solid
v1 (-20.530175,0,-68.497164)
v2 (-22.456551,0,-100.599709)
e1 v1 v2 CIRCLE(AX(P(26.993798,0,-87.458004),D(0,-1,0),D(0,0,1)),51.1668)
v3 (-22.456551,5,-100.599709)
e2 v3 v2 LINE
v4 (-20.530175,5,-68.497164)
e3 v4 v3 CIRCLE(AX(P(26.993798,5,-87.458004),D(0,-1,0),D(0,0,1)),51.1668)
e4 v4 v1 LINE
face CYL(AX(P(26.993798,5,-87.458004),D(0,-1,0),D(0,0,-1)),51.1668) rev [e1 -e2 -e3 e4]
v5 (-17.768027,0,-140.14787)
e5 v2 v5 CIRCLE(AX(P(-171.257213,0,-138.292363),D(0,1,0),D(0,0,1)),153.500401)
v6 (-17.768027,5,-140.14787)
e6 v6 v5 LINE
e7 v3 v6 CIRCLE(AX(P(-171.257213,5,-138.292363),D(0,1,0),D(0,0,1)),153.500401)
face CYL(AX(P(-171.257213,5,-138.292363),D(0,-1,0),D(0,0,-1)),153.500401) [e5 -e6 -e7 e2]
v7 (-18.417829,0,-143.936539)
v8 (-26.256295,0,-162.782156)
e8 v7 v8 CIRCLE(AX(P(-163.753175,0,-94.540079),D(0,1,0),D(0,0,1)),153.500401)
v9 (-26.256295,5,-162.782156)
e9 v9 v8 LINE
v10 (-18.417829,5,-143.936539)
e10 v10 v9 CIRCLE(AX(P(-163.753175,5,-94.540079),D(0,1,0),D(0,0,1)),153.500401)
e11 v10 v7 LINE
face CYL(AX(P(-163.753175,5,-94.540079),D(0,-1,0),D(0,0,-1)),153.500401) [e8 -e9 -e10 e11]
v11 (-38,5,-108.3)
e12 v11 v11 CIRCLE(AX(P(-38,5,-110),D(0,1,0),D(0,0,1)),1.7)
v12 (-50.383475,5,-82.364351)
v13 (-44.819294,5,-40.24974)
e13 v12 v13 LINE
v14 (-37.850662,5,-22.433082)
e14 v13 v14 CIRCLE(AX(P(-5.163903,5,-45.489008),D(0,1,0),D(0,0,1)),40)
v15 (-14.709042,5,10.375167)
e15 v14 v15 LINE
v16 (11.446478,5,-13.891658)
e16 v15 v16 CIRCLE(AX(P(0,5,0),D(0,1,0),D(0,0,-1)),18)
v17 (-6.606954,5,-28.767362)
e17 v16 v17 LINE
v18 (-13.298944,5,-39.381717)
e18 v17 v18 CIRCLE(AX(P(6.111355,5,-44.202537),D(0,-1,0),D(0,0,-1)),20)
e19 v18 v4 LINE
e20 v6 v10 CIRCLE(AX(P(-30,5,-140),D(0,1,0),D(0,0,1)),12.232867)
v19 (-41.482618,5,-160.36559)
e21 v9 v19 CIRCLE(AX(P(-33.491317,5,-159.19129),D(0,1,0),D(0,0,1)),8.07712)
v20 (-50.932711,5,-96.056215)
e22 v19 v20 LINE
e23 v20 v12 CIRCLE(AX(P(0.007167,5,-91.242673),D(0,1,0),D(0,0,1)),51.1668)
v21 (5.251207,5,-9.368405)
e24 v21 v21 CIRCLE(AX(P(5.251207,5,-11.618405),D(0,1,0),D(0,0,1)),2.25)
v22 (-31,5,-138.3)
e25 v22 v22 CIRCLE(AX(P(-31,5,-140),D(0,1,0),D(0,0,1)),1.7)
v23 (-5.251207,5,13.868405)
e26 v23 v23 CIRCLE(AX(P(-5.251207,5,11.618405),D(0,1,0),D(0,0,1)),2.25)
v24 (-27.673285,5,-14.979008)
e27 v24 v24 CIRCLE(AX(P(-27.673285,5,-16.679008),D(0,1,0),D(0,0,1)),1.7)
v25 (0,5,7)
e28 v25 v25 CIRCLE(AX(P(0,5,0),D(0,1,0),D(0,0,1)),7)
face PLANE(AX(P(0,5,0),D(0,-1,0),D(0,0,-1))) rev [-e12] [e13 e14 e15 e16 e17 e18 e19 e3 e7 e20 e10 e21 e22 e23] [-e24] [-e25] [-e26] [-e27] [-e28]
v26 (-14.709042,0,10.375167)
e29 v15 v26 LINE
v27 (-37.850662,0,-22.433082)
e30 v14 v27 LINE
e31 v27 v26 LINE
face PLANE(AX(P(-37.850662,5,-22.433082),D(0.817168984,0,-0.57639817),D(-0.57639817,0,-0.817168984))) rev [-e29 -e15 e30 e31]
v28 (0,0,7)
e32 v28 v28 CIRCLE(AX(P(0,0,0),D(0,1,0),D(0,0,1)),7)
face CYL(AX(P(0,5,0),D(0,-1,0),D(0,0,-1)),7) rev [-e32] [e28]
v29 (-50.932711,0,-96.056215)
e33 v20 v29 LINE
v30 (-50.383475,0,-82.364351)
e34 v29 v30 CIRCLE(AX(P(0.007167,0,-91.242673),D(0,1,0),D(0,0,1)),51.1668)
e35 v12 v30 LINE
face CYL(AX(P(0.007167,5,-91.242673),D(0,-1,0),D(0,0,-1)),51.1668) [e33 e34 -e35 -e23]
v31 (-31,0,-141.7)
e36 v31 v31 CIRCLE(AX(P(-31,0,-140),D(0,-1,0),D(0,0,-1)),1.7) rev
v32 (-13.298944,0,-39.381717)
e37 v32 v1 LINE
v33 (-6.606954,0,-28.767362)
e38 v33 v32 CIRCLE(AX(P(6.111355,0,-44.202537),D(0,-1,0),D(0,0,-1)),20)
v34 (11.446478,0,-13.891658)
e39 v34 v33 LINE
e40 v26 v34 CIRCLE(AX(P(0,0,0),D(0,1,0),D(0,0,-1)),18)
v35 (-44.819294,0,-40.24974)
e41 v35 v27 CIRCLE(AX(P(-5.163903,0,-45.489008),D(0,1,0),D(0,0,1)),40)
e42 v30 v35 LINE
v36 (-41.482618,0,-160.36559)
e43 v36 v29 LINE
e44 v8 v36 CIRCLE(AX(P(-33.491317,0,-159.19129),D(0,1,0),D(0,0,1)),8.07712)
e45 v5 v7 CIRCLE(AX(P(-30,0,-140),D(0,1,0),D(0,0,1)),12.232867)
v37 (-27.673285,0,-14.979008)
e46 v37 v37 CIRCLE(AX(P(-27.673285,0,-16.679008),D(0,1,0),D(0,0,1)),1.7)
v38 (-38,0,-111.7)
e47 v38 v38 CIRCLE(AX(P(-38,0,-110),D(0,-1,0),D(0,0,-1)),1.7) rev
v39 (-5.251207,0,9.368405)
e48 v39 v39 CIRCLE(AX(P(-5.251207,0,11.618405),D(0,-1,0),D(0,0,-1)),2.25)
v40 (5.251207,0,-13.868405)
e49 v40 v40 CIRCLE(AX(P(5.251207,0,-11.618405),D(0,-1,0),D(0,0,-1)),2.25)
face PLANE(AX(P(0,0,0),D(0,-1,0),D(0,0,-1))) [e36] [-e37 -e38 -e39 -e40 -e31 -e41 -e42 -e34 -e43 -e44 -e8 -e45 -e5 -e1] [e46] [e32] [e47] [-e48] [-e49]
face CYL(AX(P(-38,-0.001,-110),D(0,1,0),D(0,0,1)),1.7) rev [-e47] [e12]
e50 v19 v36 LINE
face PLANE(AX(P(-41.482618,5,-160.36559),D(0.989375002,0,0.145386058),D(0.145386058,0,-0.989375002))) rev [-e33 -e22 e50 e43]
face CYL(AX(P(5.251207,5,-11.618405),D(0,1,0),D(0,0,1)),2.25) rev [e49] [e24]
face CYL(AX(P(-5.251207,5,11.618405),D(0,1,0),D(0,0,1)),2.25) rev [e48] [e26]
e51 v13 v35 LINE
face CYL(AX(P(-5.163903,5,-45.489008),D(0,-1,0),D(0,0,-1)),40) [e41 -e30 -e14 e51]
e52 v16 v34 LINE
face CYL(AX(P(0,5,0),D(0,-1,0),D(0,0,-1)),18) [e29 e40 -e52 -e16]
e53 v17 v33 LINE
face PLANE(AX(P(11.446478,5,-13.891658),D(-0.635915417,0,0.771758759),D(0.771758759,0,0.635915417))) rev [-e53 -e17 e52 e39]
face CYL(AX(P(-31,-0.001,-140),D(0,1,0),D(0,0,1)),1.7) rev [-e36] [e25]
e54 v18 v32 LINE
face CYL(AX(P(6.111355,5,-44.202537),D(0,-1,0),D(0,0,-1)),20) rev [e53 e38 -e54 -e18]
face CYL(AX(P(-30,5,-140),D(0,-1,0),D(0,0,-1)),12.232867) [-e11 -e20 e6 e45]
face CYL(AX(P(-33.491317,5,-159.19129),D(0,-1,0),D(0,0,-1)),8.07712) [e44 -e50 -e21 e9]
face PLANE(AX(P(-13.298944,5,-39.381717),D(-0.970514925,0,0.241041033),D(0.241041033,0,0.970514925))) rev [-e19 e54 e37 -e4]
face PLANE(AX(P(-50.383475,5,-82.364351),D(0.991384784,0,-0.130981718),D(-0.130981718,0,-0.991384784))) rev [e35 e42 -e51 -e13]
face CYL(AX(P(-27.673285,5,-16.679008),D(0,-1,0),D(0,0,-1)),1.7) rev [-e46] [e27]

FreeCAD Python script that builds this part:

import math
import FreeCAD as App
import Part
import Sketcher
Q = App.Units.Quantity

doc = App.newDocument("Part")
body = doc.addObject("PartDesign::Body", "Body")

sketch1 = body.newObject("Sketcher::SketchObject", "Sketch")
sketch1.AttachmentSupport = (doc.getObject("XZ_Plane"), [""])
sketch1.MapMode = "FlatFace"
sketch1.addGeometry(Part.LineSegment(App.Vector(11.446478, -13.891658, 0), App.Vector(-6.606954, -28.767362, 0)), False)
sketch1.addGeometry(Part.ArcOfCircle(Part.Circle(App.Vector(6.111355, -44.202537, 0), App.Vector(0, 0, 1), 20), math.radians(129.487912), math.radians(166.052009)), False)
sketch1.addGeometry(Part.LineSegment(App.Vector(-13.298944, -39.381717, 0), App.Vector(-20.530175, -68.497164, 0)), False)
sketch1.addGeometry(Part.ArcOfCircle(Part.Circle(App.Vector(26.993798, -87.458004, 0), App.Vector(0, 0, 1), 51.1668), math.radians(158.249275), math.radians(194.882669)), False)
sketch1.addGeometry(Part.ArcOfCircle(Part.Circle(App.Vector(-171.257213, -138.292363, 0), App.Vector(0, 0, 1), 153.500401), math.radians(-0.692606), math.radians(14.214582)), False)
sketch1.addGeometry(Part.ArcOfCircle(Part.Circle(App.Vector(-30, -140, 0), App.Vector(0, 0, 1), 12.232867), math.radians(-18.771829), math.radians(-0.692606)), False)
sketch1.addGeometry(Part.ArcOfCircle(Part.Circle(App.Vector(-163.753175, -94.540079, 0), App.Vector(0, 0, 1), 153.500401), math.radians(-26.395999), math.radians(-18.771829)), False)
sketch1.addGeometry(Part.ArcOfCircle(Part.Circle(App.Vector(-33.491317, -159.19129, 0), App.Vector(0, 0, 1), 8.07712), math.radians(-171.640364), math.radians(-26.395999)), False)
sketch1.addGeometry(Part.LineSegment(App.Vector(-41.482618, -160.36559, 0), App.Vector(-50.932711, -96.056215, 0)), False)
sketch1.addGeometry(Part.ArcOfCircle(Part.Circle(App.Vector(0.007167, -91.242673, 0), App.Vector(0, 0, 1), 51.1668), math.radians(170.007618), math.radians(185.398111)), False)
sketch1.addGeometry(Part.LineSegment(App.Vector(-50.383475, -82.364351, 0), App.Vector(-44.819294, -40.24974, 0)), False)
sketch1.addGeometry(Part.ArcOfCircle(Part.Circle(App.Vector(-5.163903, -45.489008, 0), App.Vector(0, 0, 1), 40), math.radians(144.802394), math.radians(172.473674)), False)
sketch1.addGeometry(Part.LineSegment(App.Vector(-37.850662, -22.433082, 0), App.Vector(-14.709042, 10.375167, 0)), False)
sketch1.addGeometry(Part.ArcOfCircle(Part.Circle(App.Vector(0, 0, 0), App.Vector(0, 0, 1), 18), math.radians(-50.512088), math.radians(144.802394)), False)
sketch1.addGeometry(Part.Circle(App.Vector(0, 0, 0), App.Vector(0, 0, 1), 7), False)
sketch1.addGeometry(Part.Circle(App.Vector(-27.673285, -16.679008, 0), App.Vector(0, 0, 1), 1.7), False)
sketch1.addConstraint(Sketcher.Constraint("Coincident", 0, 2, 1, 1))
sketch1.addConstraint(Sketcher.Constraint("Coincident", 1, 2, 2, 1))
sketch1.addConstraint(Sketcher.Constraint("Coincident", 2, 2, 3, 1))
sketch1.addConstraint(Sketcher.Constraint("Coincident", 3, 2, 4, 2))
sketch1.addConstraint(Sketcher.Constraint("Coincident", 4, 1, 5, 2))
sketch1.addConstraint(Sketcher.Constraint("Coincident", 5, 1, 6, 2))
sketch1.addConstraint(Sketcher.Constraint("Coincident", 6, 1, 7, 2))
sketch1.addConstraint(Sketcher.Constraint("Coincident", 7, 1, 8, 1))
sketch1.addConstraint(Sketcher.Constraint("Coincident", 8, 2, 9, 2))
sketch1.addConstraint(Sketcher.Constraint("Coincident", 9, 1, 10, 1))
sketch1.addConstraint(Sketcher.Constraint("Coincident", 10, 2, 11, 2))
sketch1.addConstraint(Sketcher.Constraint("Coincident", 11, 1, 12, 1))
sketch1.addConstraint(Sketcher.Constraint("Coincident", 12, 2, 13, 2))
sketch1.addConstraint(Sketcher.Constraint("Coincident", 13, 1, 0, 1))
sketch1.addConstraint(Sketcher.Constraint("Coincident", 13, 3, -1, 1))
sketch1.addConstraint(Sketcher.Constraint("Coincident", 14, 3, -1, 1))
sketch1.addConstraint(Sketcher.Constraint("Diameter", 14, Q("14 mm")))
sketch1.addConstraint(Sketcher.Constraint("Radius", 1, Q("20 mm")))
sketch1.addConstraint(Sketcher.Constraint("Radius", 11, Q("40 mm")))
sketch1.addConstraint(Sketcher.Constraint("Radius", 13, Q("18 mm")))
sketch1.addConstraint(Sketcher.Constraint("Diameter", 15, Q("3.4 mm")))
sketch1.addConstraint(Sketcher.Constraint("Distance", 2, Q("30 mm")))
sketch1.addConstraint(Sketcher.Constraint("Distance", 8, Q("65 mm")))
sketch1.addConstraint(Sketcher.Constraint("DistanceX", 5, 3, -1, 1, Q("30 mm")))
sketch1.addConstraint(Sketcher.Constraint("DistanceY", 5, 3, -1, 1, Q("140 mm")))
sketch1.addConstraint(Sketcher.Constraint("Radius", 3, Q("51.1668 mm")))
sketch1.addConstraint(Sketcher.Constraint("Radius", 4, Q("153.500401 mm")))
sketch1.addConstraint(Sketcher.Constraint("Radius", 6, Q("153.500401 mm")))
sketch1.addConstraint(Sketcher.Constraint("Radius", 9, Q("51.1668 mm")))
sketch1.addConstraint(Sketcher.Constraint("Radius", 7, Q("8.07712 mm")))
sketch1.addConstraint(Sketcher.Constraint("DistanceY", 11, 3, 15, 3, Q("28.81 mm")))
sketch1.addConstraint(Sketcher.Constraint("Radius", 5, Q("12.232867 mm")))
sketch1.addConstraint(Sketcher.Constraint("DistanceX", -1, 1, 3, 3, Q("26.993798 mm")))
sketch1.addConstraint(Sketcher.Constraint("DistanceX", 11, 3, 3, 3, Q("32.157701 mm")))
sketch1.addConstraint(Sketcher.Constraint("DistanceX", 1, 2, 1, 3, Q("19.410299 mm")))
sketch1.addConstraint(Sketcher.Constraint("DistanceY", 3, 2, 11, 3, Q("55.110701 mm")))
sketch1.addConstraint(Sketcher.Constraint("DistanceX", 5, 1, 4, 1, Q("0.649802 mm")))
sketch1.addConstraint(Sketcher.Constraint("DistanceX", 7, 1, 7, 3, Q("7.991301 mm")))
sketch1.addConstraint(Sketcher.Constraint("DistanceX", 9, 1, 2, 2, Q("29.8533 mm")))
sketch1.addConstraint(Sketcher.Constraint("Distance", 10, Q("42.480591 mm")))
sketch1.addConstraint(Sketcher.Constraint("Distance", 12, Q("40.148671 mm")))
sketch1.addConstraint(Sketcher.Constraint("DistanceY", 6, 3, -1, 1, Q("94.540079 mm")))
sketch1.addConstraint(Sketcher.Constraint("DistanceY", 7, 3, -1, 1, Q("159.19129 mm")))
sketch1.addConstraint(Sketcher.Constraint("DistanceY", 11, 3, -1, 1, Q("45.489008 mm")))
sketch1.addConstraint(Sketcher.Constraint("DistanceX", 3, 2, -1, 1, Q("22.456551 mm")))
sketch1.addConstraint(Sketcher.Constraint("DistanceY", 4, 1, -1, 1, Q("140.14787 mm")))
sketch1.addConstraint(Sketcher.Constraint("DistanceX", 8, 2, -1, 1, Q("50.932711 mm")))
sketch1.addConstraint(Sketcher.Constraint("DistanceY", 9, 1, -1, 1, Q("82.364351 mm")))
sketch1.addConstraint(Sketcher.Constraint("DistanceY", 10, 2, -1, 1, Q("40.24974 mm")))
sketch1.addConstraint(Sketcher.Constraint("DistanceY", 11, 1, -1, 1, Q("22.433082 mm")))
sketch1.addConstraint(Sketcher.Constraint("DistanceX", 6, 3, 1, 3, Q("169.864529 mm")))
sketch1.addConstraint(Sketcher.Constraint("DistanceX", 15, 3, 11, 3, Q("22.509382 mm")))
sketch1.addConstraint(Sketcher.Constraint("DistanceX", 0, 2, 11, 3, Q("1.443051 mm")))
sketch1.addConstraint(Sketcher.Constraint("DistanceX", 0, 2, 13, 1, Q("18.053431 mm")))
sketch1.addConstraint(Sketcher.Constraint("DistanceX", 6, 1, -1, 1, Q("26.256295 mm")))
pad1 = body.newObject("PartDesign::Pad", "Pad")
pad1.Profile = sketch1
pad1.Length = 5
pad1.Reversed = True

sketch2 = body.newObject("Sketcher::SketchObject", "Sketch001")
sketch2.AttachmentSupport = (doc.getObject("XZ_Plane"), [""])
sketch2.MapMode = "FlatFace"
sketch2.AttachmentOffset = App.Placement(App.Vector(0, 0, -5), App.Rotation())
sketch2.addGeometry(Part.Circle(App.Vector(-31, -140, 0), App.Vector(0, 0, 1), 1.7), False)
sketch2.addConstraint(Sketcher.Constraint("Diameter", 0, Q("3.4 mm")))
sketch2.addConstraint(Sketcher.Constraint("DistanceX", 0, 3, -1, 1, Q("31 mm")))
sketch2.addConstraint(Sketcher.Constraint("DistanceY", 0, 3, -1, 1, Q("140 mm")))
pocket1 = body.newObject("PartDesign::Pocket", "Pocket")
pocket1.Profile = sketch2
pocket1.Type = "UpToFirst"
pocket1.Reversed = True

sketch3 = body.newObject("Sketcher::SketchObject", "Sketch002")
sketch3.AttachmentSupport = (doc.getObject("XZ_Plane"), [""])
sketch3.MapMode = "FlatFace"
sketch3.AttachmentOffset = App.Placement(App.Vector(0, 0, -5), App.Rotation())
sketch3.addGeometry(Part.Circle(App.Vector(-38, -110, 0), App.Vector(0, 0, 1), 1.7), False)
sketch3.addConstraint(Sketcher.Constraint("Diameter", 0, Q("3.4 mm")))
sketch3.addConstraint(Sketcher.Constraint("DistanceX", 0, 3, -1, 1, Q("38 mm")))
sketch3.addConstraint(Sketcher.Constraint("DistanceY", 0, 3, -1, 1, Q("110 mm")))
pocket2 = body.newObject("PartDesign::Pocket", "Pocket001")
pocket2.Profile = sketch3
pocket2.Type = "UpToFirst"
pocket2.Reversed = True

sketch4 = body.newObject("Sketcher::SketchObject", "Sketch003")
sketch4.AttachmentSupport = (doc.getObject("XZ_Plane"), [""])
sketch4.MapMode = "FlatFace"
sketch4.AttachmentOffset = App.Placement(App.Vector(0, 0, -5), App.Rotation())
sketch4.addGeometry(Part.Circle(App.Vector(-5.3, 11.6, 0), App.Vector(0, 0, 1), 2.2), False)
sketch4.addGeometry(Part.Circle(App.Vector(5.3, -11.6, 0), App.Vector(0, 0, 1), 2.2), False)
sketch4.addConstraint(Sketcher.Constraint("Equal", 0, 1))
sketch4.addConstraint(Sketcher.Constraint("Symmetric", 0, 3, 1, 3, -1, 1))
sketch4.addConstraint(Sketcher.Constraint("Diameter", 0, Q("4.5 mm")))
sketch4.addConstraint(Sketcher.Constraint("DistanceY", 1, 3, 0, 3, Q("23.23681 mm")))
sketch4.addConstraint(Sketcher.Constraint("DistanceX", 0, 3, -1, 1, Q("5.251207 mm")))
doc.recompute()
hole = body.newObject("PartDesign::Hole", "Hole")
hole.Profile = sketch4
hole.ThreadType = "None"
hole.Diameter = 4.5
hole.DepthType = "Dimension"
hole.Depth = 10.1
hole.DrillPoint = "Angled"
hole.DrillPointAngle = 118
hole.Reversed = True

doc.recompute()
